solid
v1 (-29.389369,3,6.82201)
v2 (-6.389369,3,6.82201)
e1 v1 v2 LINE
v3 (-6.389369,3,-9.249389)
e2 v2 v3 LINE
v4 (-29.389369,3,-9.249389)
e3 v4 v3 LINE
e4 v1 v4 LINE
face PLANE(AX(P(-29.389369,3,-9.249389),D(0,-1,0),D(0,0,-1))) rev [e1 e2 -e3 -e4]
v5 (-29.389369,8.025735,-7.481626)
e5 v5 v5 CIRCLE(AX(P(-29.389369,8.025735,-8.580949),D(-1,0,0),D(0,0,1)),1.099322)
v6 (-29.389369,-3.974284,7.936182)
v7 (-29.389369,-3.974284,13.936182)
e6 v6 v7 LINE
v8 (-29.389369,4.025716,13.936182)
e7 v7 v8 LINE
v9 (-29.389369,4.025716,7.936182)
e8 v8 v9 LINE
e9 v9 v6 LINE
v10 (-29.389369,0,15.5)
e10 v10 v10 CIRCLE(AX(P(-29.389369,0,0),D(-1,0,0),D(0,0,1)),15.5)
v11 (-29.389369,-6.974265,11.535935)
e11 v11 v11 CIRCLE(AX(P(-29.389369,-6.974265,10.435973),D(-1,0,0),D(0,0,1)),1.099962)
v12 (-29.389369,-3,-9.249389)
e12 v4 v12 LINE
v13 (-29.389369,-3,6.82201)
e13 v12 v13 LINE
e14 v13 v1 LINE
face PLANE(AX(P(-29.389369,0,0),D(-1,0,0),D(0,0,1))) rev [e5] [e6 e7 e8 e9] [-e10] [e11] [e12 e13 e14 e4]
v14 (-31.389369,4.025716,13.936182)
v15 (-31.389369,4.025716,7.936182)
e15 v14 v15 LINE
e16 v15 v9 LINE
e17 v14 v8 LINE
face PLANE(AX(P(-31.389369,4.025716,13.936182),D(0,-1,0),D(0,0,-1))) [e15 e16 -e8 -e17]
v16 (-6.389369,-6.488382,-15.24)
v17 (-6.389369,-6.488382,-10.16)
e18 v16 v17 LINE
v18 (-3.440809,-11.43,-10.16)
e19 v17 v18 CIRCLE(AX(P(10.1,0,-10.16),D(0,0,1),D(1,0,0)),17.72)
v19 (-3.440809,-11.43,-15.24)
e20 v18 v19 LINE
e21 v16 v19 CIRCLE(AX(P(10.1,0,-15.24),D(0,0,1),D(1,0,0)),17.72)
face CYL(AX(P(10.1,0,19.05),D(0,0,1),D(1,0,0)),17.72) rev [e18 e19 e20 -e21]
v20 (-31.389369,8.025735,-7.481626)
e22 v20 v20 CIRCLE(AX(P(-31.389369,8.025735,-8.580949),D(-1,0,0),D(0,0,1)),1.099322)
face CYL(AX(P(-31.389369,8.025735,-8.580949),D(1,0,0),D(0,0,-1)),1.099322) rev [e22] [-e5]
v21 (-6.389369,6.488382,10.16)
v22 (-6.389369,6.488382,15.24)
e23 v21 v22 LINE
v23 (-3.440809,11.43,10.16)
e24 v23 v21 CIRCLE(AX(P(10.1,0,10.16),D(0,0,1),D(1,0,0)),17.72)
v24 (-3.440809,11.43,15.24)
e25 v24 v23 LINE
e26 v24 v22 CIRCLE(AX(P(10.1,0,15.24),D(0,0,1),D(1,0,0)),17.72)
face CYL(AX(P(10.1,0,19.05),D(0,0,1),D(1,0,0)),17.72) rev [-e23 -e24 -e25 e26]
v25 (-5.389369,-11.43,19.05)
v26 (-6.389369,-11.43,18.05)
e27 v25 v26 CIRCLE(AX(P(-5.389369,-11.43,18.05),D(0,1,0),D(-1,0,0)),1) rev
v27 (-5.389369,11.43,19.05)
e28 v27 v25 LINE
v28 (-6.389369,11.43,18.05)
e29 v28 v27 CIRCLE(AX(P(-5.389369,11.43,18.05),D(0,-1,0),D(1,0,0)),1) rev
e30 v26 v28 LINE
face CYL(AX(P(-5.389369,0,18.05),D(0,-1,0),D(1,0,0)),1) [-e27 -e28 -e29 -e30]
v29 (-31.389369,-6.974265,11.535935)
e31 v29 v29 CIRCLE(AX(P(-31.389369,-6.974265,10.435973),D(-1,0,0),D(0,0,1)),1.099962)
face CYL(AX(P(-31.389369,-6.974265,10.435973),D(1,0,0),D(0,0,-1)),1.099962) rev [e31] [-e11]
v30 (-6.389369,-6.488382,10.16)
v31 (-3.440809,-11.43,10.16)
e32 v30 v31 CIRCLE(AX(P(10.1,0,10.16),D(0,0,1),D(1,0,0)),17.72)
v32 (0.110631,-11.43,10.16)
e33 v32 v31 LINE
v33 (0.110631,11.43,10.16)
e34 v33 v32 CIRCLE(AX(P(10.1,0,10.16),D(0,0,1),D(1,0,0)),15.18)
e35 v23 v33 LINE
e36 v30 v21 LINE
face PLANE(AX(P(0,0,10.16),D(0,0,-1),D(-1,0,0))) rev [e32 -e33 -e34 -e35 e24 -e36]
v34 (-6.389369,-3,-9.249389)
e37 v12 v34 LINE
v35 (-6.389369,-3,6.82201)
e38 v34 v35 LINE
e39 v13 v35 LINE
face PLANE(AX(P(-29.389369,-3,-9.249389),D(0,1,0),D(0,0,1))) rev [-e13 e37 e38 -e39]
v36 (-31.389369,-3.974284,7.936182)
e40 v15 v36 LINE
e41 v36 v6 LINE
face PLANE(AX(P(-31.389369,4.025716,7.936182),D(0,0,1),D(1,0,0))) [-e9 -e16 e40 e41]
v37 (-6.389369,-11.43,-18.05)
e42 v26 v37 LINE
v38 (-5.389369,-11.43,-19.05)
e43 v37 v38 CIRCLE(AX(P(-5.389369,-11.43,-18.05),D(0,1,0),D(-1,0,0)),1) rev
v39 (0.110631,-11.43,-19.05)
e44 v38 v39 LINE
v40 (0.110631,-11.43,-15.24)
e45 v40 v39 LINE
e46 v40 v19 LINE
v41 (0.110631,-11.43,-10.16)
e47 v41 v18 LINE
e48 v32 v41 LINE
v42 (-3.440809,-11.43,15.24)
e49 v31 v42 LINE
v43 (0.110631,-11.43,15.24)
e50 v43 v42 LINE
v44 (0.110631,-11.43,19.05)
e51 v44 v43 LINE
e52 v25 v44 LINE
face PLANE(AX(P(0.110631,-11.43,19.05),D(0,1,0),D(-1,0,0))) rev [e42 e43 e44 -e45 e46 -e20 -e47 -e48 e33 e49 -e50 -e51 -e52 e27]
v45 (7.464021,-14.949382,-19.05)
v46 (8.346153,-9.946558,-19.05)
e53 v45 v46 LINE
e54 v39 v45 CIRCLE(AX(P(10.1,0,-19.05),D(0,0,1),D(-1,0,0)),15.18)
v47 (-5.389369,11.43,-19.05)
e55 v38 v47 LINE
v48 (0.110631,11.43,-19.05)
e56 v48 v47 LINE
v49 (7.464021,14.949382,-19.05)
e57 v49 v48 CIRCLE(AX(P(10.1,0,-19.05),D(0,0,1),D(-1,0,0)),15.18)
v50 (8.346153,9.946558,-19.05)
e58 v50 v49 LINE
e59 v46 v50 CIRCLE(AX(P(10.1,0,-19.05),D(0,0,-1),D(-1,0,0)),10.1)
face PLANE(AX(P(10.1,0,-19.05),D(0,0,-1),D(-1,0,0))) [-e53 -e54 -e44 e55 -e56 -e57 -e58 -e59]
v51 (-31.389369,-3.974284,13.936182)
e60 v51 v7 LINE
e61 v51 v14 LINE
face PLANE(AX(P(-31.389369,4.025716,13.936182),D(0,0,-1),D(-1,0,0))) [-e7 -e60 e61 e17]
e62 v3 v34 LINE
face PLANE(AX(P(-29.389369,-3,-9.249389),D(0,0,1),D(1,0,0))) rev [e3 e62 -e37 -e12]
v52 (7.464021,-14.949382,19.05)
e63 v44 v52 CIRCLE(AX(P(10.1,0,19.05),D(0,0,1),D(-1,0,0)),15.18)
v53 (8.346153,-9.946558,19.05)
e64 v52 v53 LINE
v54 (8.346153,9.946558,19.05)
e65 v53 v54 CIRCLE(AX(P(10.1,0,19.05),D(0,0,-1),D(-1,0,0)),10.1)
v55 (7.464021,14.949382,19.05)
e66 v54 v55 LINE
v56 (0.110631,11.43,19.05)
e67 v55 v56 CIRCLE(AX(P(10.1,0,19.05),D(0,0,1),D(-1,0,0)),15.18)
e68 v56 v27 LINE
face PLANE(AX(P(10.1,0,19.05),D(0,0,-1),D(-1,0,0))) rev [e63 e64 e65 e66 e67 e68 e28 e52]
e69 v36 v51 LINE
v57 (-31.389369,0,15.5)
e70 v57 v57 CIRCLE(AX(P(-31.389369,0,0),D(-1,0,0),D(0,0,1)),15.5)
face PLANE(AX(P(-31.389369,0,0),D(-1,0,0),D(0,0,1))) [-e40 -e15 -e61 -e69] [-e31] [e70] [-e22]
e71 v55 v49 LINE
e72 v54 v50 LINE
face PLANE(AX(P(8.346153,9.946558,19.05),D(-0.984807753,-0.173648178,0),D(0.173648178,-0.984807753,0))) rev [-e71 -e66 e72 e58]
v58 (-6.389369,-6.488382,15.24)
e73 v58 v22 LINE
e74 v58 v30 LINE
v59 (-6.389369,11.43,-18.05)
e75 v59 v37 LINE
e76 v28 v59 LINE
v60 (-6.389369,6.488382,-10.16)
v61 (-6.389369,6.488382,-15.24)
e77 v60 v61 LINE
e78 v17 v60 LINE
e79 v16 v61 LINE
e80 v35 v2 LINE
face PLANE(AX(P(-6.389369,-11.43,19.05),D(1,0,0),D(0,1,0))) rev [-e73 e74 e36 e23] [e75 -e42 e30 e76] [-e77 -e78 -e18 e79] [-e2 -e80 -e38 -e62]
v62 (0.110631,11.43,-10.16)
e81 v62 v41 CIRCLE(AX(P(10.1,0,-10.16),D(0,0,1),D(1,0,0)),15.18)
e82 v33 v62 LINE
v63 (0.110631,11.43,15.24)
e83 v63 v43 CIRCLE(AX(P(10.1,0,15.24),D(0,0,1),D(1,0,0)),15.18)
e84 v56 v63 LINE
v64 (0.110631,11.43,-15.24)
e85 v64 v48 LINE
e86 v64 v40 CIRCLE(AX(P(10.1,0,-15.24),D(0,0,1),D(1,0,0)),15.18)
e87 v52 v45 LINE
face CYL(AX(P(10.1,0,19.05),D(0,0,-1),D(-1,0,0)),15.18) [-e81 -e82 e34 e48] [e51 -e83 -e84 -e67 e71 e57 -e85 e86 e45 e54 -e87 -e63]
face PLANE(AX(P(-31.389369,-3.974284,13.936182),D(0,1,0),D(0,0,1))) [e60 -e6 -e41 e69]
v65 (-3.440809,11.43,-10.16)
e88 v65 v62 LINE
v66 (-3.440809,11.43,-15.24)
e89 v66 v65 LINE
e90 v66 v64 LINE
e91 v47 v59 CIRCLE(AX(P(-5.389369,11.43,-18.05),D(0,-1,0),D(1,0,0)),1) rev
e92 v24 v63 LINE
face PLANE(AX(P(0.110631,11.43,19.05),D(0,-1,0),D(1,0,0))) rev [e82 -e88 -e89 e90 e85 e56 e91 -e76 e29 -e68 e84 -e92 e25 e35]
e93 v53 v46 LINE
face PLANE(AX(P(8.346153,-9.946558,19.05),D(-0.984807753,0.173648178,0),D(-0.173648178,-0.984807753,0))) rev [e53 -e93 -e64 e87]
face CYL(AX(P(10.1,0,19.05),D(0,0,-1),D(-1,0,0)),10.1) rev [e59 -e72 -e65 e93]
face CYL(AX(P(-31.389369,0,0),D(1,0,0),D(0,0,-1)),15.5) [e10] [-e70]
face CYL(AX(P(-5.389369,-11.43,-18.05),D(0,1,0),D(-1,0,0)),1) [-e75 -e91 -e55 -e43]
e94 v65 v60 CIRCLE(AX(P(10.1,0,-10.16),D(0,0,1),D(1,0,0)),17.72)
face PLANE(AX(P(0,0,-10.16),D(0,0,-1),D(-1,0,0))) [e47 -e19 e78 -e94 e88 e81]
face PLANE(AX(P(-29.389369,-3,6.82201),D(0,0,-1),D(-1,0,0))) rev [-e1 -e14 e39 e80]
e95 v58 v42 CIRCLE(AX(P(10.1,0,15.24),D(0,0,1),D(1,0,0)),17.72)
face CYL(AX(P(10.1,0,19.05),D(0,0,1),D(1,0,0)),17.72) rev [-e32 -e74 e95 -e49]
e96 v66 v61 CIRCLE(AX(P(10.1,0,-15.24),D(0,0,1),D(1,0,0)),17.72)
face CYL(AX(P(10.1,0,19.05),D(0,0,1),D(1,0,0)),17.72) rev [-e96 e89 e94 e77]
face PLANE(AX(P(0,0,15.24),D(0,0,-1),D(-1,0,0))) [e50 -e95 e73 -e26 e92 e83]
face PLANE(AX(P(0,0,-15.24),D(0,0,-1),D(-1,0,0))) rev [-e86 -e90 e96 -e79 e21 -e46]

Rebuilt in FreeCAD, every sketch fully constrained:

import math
import FreeCAD as App
import Part
import Sketcher

V = App.Vector
Q = App.Units.Quantity


def edges_at(feature, points):
    """Names of the edges that pass closest to the given points."""
    edges = feature.Shape.Edges
    near = lambda p: min(range(len(edges)), key=lambda i: edges[i].distToShape(Part.Vertex(*p))[0])
    return sorted({f"Edge{near(p) + 1}" for p in points})

doc = App.newDocument("Part")
body = doc.addObject("PartDesign::Body", "Body")

# Sketch on XY plane
sketch1 = body.newObject("Sketcher::SketchObject", "Sketch")
sketch1.AttachmentSupport = (doc.getObject("XY_Plane"), [""])
sketch1.MapMode = "FlatFace"
sketch1.addGeometry([
    Part.LineSegment(V(7, -15, 0), V(8, -10, 0)),  # 0
    Part.ArcOfCircle(Part.Circle(V(10, 0, 0), V(0, 0, 1), 10), math.radians(100), math.radians(260)),  # 1
    Part.LineSegment(V(8, 10, 0), V(7, 15, 0)),  # 2
    Part.ArcOfCircle(Part.Circle(V(10, 0, 0), V(0, 0, 1), 15), math.radians(100), math.radians(131)),  # 3
    Part.LineSegment(V(0, 11, 0), V(-6, 11, 0)),  # 4
    Part.LineSegment(V(-6, 11, 0), V(-6, -11, 0)),  # 5
    Part.LineSegment(V(-6, -11, 0), V(0, -11, 0)),  # 6
    Part.ArcOfCircle(Part.Circle(V(10, 0, 0), V(0, 0, 1), 15), math.radians(-131), math.radians(-100)),  # 7
], False)
sketch1.addConstraint([
    Sketcher.Constraint("Coincident", 0, 2, 1, 2),
    Sketcher.Constraint("Coincident", 1, 1, 2, 1),
    Sketcher.Constraint("Coincident", 2, 2, 3, 1),
    Sketcher.Constraint("Coincident", 3, 2, 4, 1),
    Sketcher.Constraint("Coincident", 4, 2, 5, 1),
    Sketcher.Constraint("Coincident", 5, 2, 6, 1),
    Sketcher.Constraint("Coincident", 6, 2, 7, 1),
    Sketcher.Constraint("Coincident", 7, 2, 0, 1),
    Sketcher.Constraint("Horizontal", 4),
    Sketcher.Constraint("Vertical", 5),
    Sketcher.Constraint("Horizontal", 6),
    Sketcher.Constraint("Coincident", 3, 3, 1, 3),
    Sketcher.Constraint("Coincident", 7, 3, 1, 3),
    Sketcher.Constraint("Equal", 3, 7),
    Sketcher.Constraint("Symmetric", 0, 2, 1, 1, -1),
    Sketcher.Constraint("Vertical", 3, 2, 6, 2),
    Sketcher.Constraint("Vertical", 2, 2, 7, 2),
    Sketcher.Constraint("Radius", 1, Q("10.1 mm")),
    Sketcher.Constraint("Angle", 0, Q("80 deg")),
    Sketcher.Constraint("Radius", 3, Q("15.18 mm")),
    Sketcher.Constraint("DistanceX", 4, 2, 4, 1, Q("6.5 mm")),
    Sketcher.Constraint("DistanceY", 5, 2, 5, 1, Q("22.86 mm")),
    Sketcher.Constraint("DistanceX", -1, 1, 1, 3, Q("10.1 mm")),
    Sketcher.Constraint("DistanceY", 0, 2, -1, 1, Q("9.946558 mm")),
])
pad1 = body.newObject("PartDesign::Pad", "Pad")
pad1.Profile = sketch1
pad1.Length = 38.1
pad1.Midplane = True

# Sketch on YZ plane
sketch2 = body.newObject("Sketcher::SketchObject", "Sketch001")
sketch2.AttachmentSupport = (doc.getObject("YZ_Plane"), [""])
sketch2.MapMode = "FlatFace"
sketch2.AttachmentOffset = App.Placement(V(0, 0, -6.389369), App.Rotation())
sketch2.addGeometry([
    Part.LineSegment(V(3, -9, 0), V(-3, -9, 0)),
    Part.LineSegment(V(-3, -9, 0), V(-3, 7, 0)),
    Part.LineSegment(V(-3, 7, 0), V(3, 7, 0)),
    Part.LineSegment(V(3, 7, 0), V(3, -9, 0)),
], False)
sketch2.addConstraint([
    Sketcher.Constraint("Coincident", 0, 2, 1, 1),
    Sketcher.Constraint("Coincident", 1, 2, 2, 1),
    Sketcher.Constraint("Coincident", 2, 2, 3, 1),
    Sketcher.Constraint("Coincident", 3, 2, 0, 1),
    Sketcher.Constraint("Horizontal", 0),
    Sketcher.Constraint("Vertical", 1),
    Sketcher.Constraint("Horizontal", 2),
    Sketcher.Constraint("Vertical", 3),
    Sketcher.Constraint("DistanceX", 0, 2, 0, 1, Q("6 mm")),
    Sketcher.Constraint("DistanceX", 0, 2, -1, 1, Q("3 mm")),
    Sketcher.Constraint("DistanceY", 1, 1, 1, 2, Q("16.0714 mm")),
    Sketcher.Constraint("DistanceY", 0, 2, -1, 1, Q("9.249389 mm")),
])
pad2 = body.newObject("PartDesign::Pad", "Pad001")
pad2.Profile = sketch2
pad2.Length = 23
pad2.Reversed = True

# Sketch on XZ plane
sketch3 = body.newObject("Sketcher::SketchObject", "Sketch002")
sketch3.AttachmentSupport = (doc.getObject("XZ_Plane"), [""])
sketch3.MapMode = "FlatFace"
sketch3.addGeometry([
    Part.LineSegment(V(-7.6, -15.2, 0), V(-7.6, -10.2, 0)),  # 0
    Part.LineSegment(V(-7.6, -10.2, 0), V(-5.1, -10.2, 0)),  # 1
    Part.LineSegment(V(-5.1, -10.2, 0), V(-5.1, -15.2, 0)),  # 2
    Part.LineSegment(V(-5.1, -15.2, 0), V(-7.6, -15.2, 0)),  # 3
    Part.LineSegment(V(-7.6, 10.2, 0), V(-7.6, 15.2, 0)),  # 4
    Part.LineSegment(V(-7.6, 15.2, 0), V(-5.1, 15.2, 0)),  # 5
    Part.LineSegment(V(-5.1, 15.2, 0), V(-5.1, 10.2, 0)),  # 6
    Part.LineSegment(V(-5.1, 10.2, 0), V(-7.6, 10.2, 0)),  # 7
], False)
sketch3.addGeometry(Part.LineSegment(V(10.1, 15.2, 0), V(10.1, -15.2, 0)), True)  # axis
sketch3.addConstraint([
    Sketcher.Constraint("Coincident", 0, 2, 1, 1),
    Sketcher.Constraint("Coincident", 1, 2, 2, 1),
    Sketcher.Constraint("Coincident", 2, 2, 3, 1),
    Sketcher.Constraint("Coincident", 3, 2, 0, 1),
    Sketcher.Constraint("Coincident", 4, 2, 5, 1),
    Sketcher.Constraint("Coincident", 5, 2, 6, 1),
    Sketcher.Constraint("Coincident", 6, 2, 7, 1),
    Sketcher.Constraint("Coincident", 7, 2, 4, 1),
    Sketcher.Constraint("Vertical", 0),
    Sketcher.Constraint("Horizontal", 1),
    Sketcher.Constraint("Vertical", 2),
    Sketcher.Constraint("Horizontal", 3),
    Sketcher.Constraint("Vertical", 4),
    Sketcher.Constraint("Horizontal", 5),
    Sketcher.Constraint("Vertical", 6),
    Sketcher.Constraint("Horizontal", 7),
    Sketcher.Constraint("Vertical", 8),
    Sketcher.Constraint("Symmetric", 3, 2, 4, 2, -1),
    Sketcher.Constraint("Symmetric", 1, 2, 6, 2, -1),
    Sketcher.Constraint("Horizontal", 5, 2, 8, 1),
    Sketcher.Constraint("Horizontal", 3, 2, 8, 2),
    Sketcher.Constraint("DistanceX", 1, 1, 1, 2, Q("2.54 mm")),
    Sketcher.Constraint("DistanceY", 0, 1, 0, 2, Q("5.08 mm")),
    Sketcher.Constraint("DistanceY", 8, 2, 8, 1, Q("30.48 mm")),
    Sketcher.Constraint("DistanceX", -1, 1, 8, 1, Q("10.1 mm")),
    Sketcher.Constraint("DistanceX", 0, 2, -1, 1, Q("7.62 mm")),
])
groove = body.newObject("PartDesign::Groove", "Groove")
groove.Profile = sketch3
groove.ReferenceAxis = (sketch3, ["Axis0"])
groove.Angle = 360

# Sketch on YZ plane
sketch4 = body.newObject("Sketcher::SketchObject", "Sketch003")
sketch4.AttachmentSupport = (doc.getObject("YZ_Plane"), [""])
sketch4.MapMode = "FlatFace"
sketch4.AttachmentOffset = App.Placement(V(0, 0, -29.389369), App.Rotation())
sketch4.addGeometry([
    Part.Circle(V(0, 0, 0), V(0, 0, 1), 15.5),  # 0
    Part.Circle(V(8, -8.6, 0), V(0, 0, 1), 1.1),  # 1
    Part.LineSegment(V(-4, 7.9, 0), V(4, 7.9, 0)),  # 2
    Part.LineSegment(V(4, 7.9, 0), V(4, 13.9, 0)),  # 3
    Part.LineSegment(V(4, 13.9, 0), V(-4, 13.9, 0)),  # 4
    Part.LineSegment(V(-4, 13.9, 0), V(-4, 7.9, 0)),  # 5
    Part.Circle(V(-7, 10.4, 0), V(0, 0, 1), 1.1),  # 6
], False)
sketch4.addConstraint([
    Sketcher.Constraint("Coincident", 2, 2, 3, 1),
    Sketcher.Constraint("Coincident", 3, 2, 4, 1),
    Sketcher.Constraint("Coincident", 4, 2, 5, 1),
    Sketcher.Constraint("Coincident", 5, 2, 2, 1),
    Sketcher.Constraint("Horizontal", 2),
    Sketcher.Constraint("Vertical", 3),
    Sketcher.Constraint("Horizontal", 4),
    Sketcher.Constraint("Vertical", 5),
    Sketcher.Constraint("Coincident", 0, 3, -1, 1),
    Sketcher.Constraint("Diameter", 0, Q("31 mm")),
    Sketcher.Constraint("DistanceX", 2, 1, 2, 2, Q("8 mm")),
    Sketcher.Constraint("DistanceY", 3, 1, 3, 2, Q("6 mm")),
    Sketcher.Constraint("DistanceX", 6, 3, 1, 3, Q("15 mm")),
    Sketcher.Constraint("Diameter", 1, Q("2.198645 mm")),
    Sketcher.Constraint("Diameter", 6, Q("2.199925 mm")),
    Sketcher.Constraint("DistanceY", 1, 3, -1, 1, Q("8.580949 mm")),
    Sketcher.Constraint("DistanceY", 1, 3, 6, 3, Q("19.016921 mm")),
    Sketcher.Constraint("DistanceX", 6, 3, 2, 2, Q("10.999981 mm")),
    Sketcher.Constraint("DistanceY", 2, 2, 6, 3, Q("2.49979 mm")),
    Sketcher.Constraint("DistanceX", -1, 1, 1, 3, Q("8.025735 mm")),
])
pad3 = body.newObject("PartDesign::Pad", "Pad002")
pad3.Profile = sketch4
pad3.Length = 2
pad3.Reversed = True
doc.recompute()

fillet = body.newObject("PartDesign::Fillet", "Fillet")
fillet.Base = (pad3, edges_at(pad3, [(-6.389, 0, 19.05), (-6.389, 0, -19.05)]))
fillet.Radius = 1

doc.recompute()
